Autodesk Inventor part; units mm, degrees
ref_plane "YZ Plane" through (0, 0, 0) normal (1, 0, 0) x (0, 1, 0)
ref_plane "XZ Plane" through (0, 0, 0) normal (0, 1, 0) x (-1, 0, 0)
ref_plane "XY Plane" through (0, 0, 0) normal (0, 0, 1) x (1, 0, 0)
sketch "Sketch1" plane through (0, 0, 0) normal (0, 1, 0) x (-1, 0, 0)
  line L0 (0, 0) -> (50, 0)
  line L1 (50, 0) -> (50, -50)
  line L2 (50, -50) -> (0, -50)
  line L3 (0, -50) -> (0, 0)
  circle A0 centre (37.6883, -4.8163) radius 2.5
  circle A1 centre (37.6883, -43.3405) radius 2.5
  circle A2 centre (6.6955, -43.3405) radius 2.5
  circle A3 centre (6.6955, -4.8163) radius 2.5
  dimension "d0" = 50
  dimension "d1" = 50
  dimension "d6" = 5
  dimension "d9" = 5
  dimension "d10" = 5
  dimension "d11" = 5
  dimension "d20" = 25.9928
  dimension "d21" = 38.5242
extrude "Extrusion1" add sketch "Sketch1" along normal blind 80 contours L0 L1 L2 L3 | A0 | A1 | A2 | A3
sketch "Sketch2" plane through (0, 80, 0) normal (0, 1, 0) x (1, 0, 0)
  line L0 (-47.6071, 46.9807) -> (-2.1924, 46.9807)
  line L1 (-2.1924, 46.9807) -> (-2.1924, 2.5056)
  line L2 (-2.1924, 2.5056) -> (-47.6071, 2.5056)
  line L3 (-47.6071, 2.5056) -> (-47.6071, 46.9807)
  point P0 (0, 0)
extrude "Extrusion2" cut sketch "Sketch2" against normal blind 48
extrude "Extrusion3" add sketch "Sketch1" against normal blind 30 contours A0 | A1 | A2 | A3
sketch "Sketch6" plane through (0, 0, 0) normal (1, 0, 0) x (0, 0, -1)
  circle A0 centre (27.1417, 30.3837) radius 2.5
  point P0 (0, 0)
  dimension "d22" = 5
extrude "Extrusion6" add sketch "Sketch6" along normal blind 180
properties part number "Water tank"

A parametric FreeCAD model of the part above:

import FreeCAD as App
import Part
import Sketcher
from FreeCAD import Vector


def add_polygon(sketch, points):
    """Adds a closed chain of lines whose ends are joined by coincident constraints."""
    first, n = sketch.GeometryCount, len(points)
    for a, b in zip(points, points[1:] + points[:1]):
        sketch.addGeometry(Part.LineSegment(App.Vector(*a, 0), App.Vector(*b, 0)), False)
    for i in range(n):
        sketch.addConstraint(Sketcher.Constraint("Coincident", first + i, 2, first + (i + 1) % n, 1))

doc = App.newDocument("Part")
body = doc.addObject("PartDesign::Body", "Body")

# Sketch on XZ plane
sketch1 = doc.addObject("Sketcher::SketchObject", "Sketch")
body.addObject(sketch1)
sketch1.AttachmentSupport = (doc.XZ_Plane, [""])
sketch1.MapMode = "FlatFace"
add_polygon(sketch1, [(-50, 0), (0, 0), (0, -50), (-50, -50)])  # lines 0-3
sketch1.addConstraint([
    Sketcher.Constraint("Horizontal", 0),
    Sketcher.Constraint("Vertical", 1),
    Sketcher.Constraint("Horizontal", 2),
    Sketcher.Constraint("Vertical", 3),
    Sketcher.Constraint("Coincident", 0, 2, -1, 1),
    Sketcher.Constraint("Equal", 2, 1),
    Sketcher.Constraint("DistanceX", 0, 1, 0, 2, 50.0),
])
pad1 = doc.addObject("PartDesign::Pad", "Pad")
body.addObject(pad1)
pad1.Profile = sketch1
pad1.Length = 80
pad1.Reversed = True

# Sketch on XZ plane
sketch2 = doc.addObject("Sketcher::SketchObject", "Sketch001")
body.addObject(sketch2)
sketch2.AttachmentSupport = (doc.XZ_Plane, [""])
sketch2.MapMode = "FlatFace"
sketch2.AttachmentOffset = App.Placement(Vector(0, 0, -80), App.Rotation())
add_polygon(sketch2, [(-2, -47), (-48, -47), (-48, -3), (-2, -3)])  # lines 0-3
sketch2.addConstraint([
    Sketcher.Constraint("Horizontal", 0),
    Sketcher.Constraint("Vertical", 1),
    Sketcher.Constraint("Horizontal", 2),
    Sketcher.Constraint("Vertical", 3),
    Sketcher.Constraint("DistanceY", 1, 1, 1, 2, 44.475),
    Sketcher.Constraint("DistanceX", 0, 2, 0, 1, 45.4147),
    Sketcher.Constraint("DistanceX", 0, 2, -1, 1, 47.607),
    Sketcher.Constraint("DistanceY", 0, 2, -1, 1, 46.9807),
])
pocket1 = doc.addObject("PartDesign::Pocket", "Pocket")
body.addObject(pocket1)
pocket1.Profile = sketch2
pocket1.Length = 48
pocket1.Reversed = True

# Sketch on XZ plane
sketch3 = doc.addObject("Sketcher::SketchObject", "Sketch002")
body.addObject(sketch3)
sketch3.AttachmentSupport = (doc.XZ_Plane, [""])
sketch3.MapMode = "FlatFace"
sketch3.addGeometry([
    Part.Circle(Vector(-37.7, -4.8, 0), Vector(0, 0, 1), 2.5),
    Part.Circle(Vector(-37.7, -43.3, 0), Vector(0, 0, 1), 2.5),
    Part.Circle(Vector(-6.7, -43.3, 0), Vector(0, 0, 1), 2.5),
    Part.Circle(Vector(-6.7, -4.8, 0), Vector(0, 0, 1), 2.5),
], False)
sketch3.addConstraint([
    Sketcher.Constraint("Equal", 0, 1),
    Sketcher.Constraint("Equal", 1, 2),
    Sketcher.Constraint("Equal", 2, 3),
    Sketcher.Constraint("Horizontal", 1, 3, 2, 3),
    Sketcher.Constraint("Horizontal", 0, 3, 3, 3),
    Sketcher.Constraint("Vertical", 0, 3, 1, 3),
    Sketcher.Constraint("Vertical", 2, 3, 3, 3),
    Sketcher.Constraint("Diameter", 0, 5.0),
    Sketcher.Constraint("DistanceY", 1, 3, 0, 3, 38.5242),
    Sketcher.Constraint("DistanceX", 0, 3, -1, 1, 37.6883),
    Sketcher.Constraint("DistanceY", 0, 3, -1, 1, 4.8163),
    Sketcher.Constraint("DistanceX", 2, 3, -1, 1, 6.6955),
])
pad2 = doc.addObject("PartDesign::Pad", "Pad001")
body.addObject(pad2)
pad2.Profile = sketch3
pad2.Length = 30

# Sketch on YZ plane
sketch4 = doc.addObject("Sketcher::SketchObject", "Sketch003")
body.addObject(sketch4)
sketch4.AttachmentSupport = (doc.YZ_Plane, [""])
sketch4.MapMode = "FlatFace"
sketch4.addGeometry(Part.Circle(Vector(30.4, -27.1, 0), Vector(0, 0, 1), 2.5), False)
sketch4.addConstraint([
    Sketcher.Constraint("Diameter", 0, 5.0),
    Sketcher.Constraint("DistanceX", -1, 1, 0, 3, 30.3837),
    Sketcher.Constraint("DistanceY", 0, 3, -1, 1, 27.1417),
])
pad3 = doc.addObject("PartDesign::Pad", "Pad002")
body.addObject(pad3)
pad3.Profile = sketch4
pad3.Length = 180

doc.recompute()
